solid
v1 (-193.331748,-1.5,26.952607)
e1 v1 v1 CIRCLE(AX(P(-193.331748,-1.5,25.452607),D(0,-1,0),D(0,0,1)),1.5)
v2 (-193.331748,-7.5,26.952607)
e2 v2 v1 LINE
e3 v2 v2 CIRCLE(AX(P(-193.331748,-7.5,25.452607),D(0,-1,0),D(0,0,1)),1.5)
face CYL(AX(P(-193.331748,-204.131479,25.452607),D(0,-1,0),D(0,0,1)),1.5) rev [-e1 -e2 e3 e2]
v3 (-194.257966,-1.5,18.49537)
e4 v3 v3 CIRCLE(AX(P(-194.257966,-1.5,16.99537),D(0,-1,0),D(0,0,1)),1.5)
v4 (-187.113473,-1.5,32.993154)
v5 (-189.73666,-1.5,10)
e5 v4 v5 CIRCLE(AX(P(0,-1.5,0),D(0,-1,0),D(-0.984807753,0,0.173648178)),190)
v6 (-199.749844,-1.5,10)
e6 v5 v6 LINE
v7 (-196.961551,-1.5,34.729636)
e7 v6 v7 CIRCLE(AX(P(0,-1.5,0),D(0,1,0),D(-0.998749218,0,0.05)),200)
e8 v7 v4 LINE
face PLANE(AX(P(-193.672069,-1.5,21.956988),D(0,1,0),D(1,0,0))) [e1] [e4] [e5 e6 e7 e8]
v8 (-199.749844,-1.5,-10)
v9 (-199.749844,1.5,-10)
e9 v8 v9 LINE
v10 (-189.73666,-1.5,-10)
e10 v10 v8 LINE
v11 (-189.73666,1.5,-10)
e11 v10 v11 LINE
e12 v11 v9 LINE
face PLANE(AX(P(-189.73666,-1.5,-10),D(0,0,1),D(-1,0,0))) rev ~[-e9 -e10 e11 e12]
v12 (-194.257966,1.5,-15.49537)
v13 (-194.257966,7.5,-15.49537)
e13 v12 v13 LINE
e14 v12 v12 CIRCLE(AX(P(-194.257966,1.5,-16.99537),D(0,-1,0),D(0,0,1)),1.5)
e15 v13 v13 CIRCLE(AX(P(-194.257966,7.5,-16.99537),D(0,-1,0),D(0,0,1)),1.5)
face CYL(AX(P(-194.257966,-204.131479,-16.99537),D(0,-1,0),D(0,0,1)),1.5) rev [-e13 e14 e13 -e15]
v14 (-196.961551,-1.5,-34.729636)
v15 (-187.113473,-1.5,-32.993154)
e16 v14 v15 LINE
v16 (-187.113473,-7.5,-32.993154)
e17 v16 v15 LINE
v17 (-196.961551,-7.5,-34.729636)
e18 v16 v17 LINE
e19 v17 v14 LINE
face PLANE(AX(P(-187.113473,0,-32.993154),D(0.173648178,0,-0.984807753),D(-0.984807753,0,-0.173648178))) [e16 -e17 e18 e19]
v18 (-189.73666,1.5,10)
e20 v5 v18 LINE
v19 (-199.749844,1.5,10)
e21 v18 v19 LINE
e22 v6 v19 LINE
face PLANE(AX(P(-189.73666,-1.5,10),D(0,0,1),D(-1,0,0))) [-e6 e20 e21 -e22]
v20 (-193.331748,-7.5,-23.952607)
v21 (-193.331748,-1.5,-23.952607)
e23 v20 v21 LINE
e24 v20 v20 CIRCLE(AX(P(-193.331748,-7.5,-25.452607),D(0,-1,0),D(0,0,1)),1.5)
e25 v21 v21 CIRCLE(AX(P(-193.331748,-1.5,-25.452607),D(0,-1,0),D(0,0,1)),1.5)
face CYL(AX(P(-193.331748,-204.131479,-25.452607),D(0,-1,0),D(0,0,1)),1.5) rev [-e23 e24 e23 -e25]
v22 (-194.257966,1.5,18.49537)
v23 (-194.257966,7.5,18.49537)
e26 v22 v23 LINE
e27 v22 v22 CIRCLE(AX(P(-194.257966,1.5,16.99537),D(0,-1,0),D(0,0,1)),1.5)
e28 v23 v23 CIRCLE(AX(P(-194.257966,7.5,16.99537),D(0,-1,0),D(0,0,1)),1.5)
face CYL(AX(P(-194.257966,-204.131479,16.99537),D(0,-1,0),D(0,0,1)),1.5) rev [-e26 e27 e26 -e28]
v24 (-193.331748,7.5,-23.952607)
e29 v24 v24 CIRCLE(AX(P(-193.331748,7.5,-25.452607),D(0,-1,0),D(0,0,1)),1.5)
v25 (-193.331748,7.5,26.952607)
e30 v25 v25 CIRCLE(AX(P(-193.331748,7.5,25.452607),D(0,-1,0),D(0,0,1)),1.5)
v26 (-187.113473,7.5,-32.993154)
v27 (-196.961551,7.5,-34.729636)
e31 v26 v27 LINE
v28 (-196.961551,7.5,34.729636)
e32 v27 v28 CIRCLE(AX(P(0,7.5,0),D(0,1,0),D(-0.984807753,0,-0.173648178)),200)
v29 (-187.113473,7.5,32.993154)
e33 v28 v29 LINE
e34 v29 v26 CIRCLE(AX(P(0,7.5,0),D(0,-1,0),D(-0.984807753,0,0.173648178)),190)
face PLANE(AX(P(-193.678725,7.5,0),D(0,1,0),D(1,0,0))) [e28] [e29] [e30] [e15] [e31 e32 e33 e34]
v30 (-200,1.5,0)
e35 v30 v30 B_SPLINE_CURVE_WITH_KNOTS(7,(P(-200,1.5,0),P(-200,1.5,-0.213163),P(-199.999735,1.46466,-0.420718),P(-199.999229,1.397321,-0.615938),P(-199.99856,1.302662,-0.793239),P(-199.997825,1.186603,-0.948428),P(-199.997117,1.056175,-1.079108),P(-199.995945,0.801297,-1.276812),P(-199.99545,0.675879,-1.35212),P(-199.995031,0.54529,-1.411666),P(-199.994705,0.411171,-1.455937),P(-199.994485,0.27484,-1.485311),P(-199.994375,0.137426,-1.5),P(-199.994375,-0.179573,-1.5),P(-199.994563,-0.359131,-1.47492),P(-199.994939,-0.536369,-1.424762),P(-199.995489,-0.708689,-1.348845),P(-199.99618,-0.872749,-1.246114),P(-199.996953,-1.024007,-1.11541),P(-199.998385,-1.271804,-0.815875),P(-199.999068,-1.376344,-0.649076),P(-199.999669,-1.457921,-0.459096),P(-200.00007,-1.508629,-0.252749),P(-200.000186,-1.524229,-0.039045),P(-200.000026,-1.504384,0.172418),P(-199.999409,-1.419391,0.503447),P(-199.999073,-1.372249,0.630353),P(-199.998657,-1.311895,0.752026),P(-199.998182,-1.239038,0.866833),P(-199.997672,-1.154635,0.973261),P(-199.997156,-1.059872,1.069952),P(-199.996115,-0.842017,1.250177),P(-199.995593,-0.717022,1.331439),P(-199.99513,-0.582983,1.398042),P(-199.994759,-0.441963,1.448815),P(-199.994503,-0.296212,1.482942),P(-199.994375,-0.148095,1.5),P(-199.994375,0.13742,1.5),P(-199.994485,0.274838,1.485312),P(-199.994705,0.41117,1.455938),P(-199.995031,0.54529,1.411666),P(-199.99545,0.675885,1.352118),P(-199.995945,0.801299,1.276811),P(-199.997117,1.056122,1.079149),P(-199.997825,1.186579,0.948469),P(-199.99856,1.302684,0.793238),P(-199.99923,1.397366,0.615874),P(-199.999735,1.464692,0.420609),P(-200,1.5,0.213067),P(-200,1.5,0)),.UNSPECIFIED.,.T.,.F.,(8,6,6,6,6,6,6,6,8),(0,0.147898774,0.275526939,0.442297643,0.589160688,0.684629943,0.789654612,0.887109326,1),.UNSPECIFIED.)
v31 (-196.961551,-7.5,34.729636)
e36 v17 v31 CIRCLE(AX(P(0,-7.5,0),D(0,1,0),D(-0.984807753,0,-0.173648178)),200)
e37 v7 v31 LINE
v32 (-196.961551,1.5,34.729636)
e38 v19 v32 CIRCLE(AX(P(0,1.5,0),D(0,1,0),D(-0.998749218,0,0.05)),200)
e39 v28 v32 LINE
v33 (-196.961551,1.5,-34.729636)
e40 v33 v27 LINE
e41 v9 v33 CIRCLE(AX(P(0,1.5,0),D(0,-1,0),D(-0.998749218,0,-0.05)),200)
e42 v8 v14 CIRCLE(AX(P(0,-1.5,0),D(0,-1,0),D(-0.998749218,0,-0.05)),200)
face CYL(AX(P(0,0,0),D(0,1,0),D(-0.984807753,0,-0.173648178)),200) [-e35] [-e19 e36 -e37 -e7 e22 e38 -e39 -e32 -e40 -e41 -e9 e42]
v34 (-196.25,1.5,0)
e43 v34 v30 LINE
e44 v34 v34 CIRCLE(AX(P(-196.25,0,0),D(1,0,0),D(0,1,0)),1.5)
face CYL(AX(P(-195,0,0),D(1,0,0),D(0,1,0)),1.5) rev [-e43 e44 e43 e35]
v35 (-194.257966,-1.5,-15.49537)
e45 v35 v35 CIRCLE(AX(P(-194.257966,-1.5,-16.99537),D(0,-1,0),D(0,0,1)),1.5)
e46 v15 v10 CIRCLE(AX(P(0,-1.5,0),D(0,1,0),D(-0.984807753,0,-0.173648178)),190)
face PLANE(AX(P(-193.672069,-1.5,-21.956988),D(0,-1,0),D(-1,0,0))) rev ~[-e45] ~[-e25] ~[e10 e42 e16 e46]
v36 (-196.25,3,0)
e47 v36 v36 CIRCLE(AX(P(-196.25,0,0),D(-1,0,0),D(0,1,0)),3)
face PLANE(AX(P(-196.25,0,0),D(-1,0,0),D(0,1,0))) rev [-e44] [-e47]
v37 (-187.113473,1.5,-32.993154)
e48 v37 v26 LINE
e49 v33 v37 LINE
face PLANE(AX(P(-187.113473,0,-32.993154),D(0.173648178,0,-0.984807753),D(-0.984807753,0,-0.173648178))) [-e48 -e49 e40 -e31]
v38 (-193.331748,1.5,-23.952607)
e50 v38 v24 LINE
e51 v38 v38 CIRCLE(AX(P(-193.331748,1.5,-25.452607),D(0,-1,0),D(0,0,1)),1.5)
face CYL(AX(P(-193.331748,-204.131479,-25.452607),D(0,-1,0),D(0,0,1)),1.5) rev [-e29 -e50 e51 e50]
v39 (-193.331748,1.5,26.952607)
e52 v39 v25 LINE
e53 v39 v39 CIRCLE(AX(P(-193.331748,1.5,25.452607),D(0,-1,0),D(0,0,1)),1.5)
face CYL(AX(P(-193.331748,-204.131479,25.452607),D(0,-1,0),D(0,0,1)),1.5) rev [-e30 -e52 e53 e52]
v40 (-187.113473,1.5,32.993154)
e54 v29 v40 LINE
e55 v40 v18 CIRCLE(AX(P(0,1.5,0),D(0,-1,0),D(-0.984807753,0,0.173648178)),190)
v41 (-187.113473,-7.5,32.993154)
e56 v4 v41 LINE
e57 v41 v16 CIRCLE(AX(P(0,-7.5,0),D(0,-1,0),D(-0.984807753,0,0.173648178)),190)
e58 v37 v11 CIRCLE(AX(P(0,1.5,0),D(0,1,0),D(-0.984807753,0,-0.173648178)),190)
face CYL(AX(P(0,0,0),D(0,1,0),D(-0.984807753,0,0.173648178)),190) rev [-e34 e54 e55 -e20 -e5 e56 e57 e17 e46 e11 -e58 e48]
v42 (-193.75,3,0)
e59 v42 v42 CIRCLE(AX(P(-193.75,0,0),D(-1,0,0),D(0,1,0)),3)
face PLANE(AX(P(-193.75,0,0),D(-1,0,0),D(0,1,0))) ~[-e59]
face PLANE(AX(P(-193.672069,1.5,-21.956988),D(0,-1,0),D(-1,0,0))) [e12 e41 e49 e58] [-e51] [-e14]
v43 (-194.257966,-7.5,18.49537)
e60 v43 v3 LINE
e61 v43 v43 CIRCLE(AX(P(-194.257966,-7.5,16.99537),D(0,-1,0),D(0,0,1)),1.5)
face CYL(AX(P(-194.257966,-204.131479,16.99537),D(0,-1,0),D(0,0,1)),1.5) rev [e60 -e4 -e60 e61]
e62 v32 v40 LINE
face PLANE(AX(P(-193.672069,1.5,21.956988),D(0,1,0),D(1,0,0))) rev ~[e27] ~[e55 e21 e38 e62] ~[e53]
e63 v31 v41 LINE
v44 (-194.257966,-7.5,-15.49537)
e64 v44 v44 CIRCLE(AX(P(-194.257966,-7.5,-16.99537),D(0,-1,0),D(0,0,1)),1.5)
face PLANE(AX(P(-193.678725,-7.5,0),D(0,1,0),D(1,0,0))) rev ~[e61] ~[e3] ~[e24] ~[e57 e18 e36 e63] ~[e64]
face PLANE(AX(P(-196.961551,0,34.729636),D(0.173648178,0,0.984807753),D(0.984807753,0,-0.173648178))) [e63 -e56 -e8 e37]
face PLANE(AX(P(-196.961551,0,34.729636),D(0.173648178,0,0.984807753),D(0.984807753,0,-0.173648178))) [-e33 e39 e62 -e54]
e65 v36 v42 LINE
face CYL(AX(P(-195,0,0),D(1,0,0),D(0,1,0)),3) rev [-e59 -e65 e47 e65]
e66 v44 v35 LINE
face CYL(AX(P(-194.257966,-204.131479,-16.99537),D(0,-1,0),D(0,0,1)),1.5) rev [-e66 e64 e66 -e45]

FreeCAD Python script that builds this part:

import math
import FreeCAD as App
import Part
import Sketcher
Q = App.Units.Quantity

doc = App.newDocument("Part")
params = doc.addObject("Spreadsheet::Sheet", "Params")
for row, (alias, value) in enumerate([
    ("sketch1_radius", "190 mm"),
    ("sketch1_radius2", "200 mm"),
    ("pad1_length", "15 mm"),
    ("sketch2_radius", "200 mm"),
    ("sketch2_radius2", "190 mm"),
    ("pocket1_length", "3 mm"),
    ("sketch3_diameter", "3 mm"),
    ("sketch4_diameter", "3 mm"),
    ("sketch5_height", "3 mm"),
    ("sketch5_width", "2.5 mm"),
    ("groove_angle", "360 deg"),
], start=1):
    params.set(f"A{row}", alias)
    params.set(f"B{row}", "=" + value)
    params.setAlias(f"B{row}", alias)

body = doc.addObject("PartDesign::Body", "Body")

# Sketch on XZ plane
sketch1 = body.newObject("Sketcher::SketchObject", "Sketch")
sketch1.AttachmentSupport = (doc.getObject("XZ_Plane"), [""])
sketch1.MapMode = "FlatFace"
sketch1.addGeometry([
    Part.ArcOfCircle(Part.Circle(App.Vector(0, 0, 0), App.Vector(0, 0, 1), 190), math.radians(170), math.radians(190)),
    Part.LineSegment(App.Vector(-187, -33, 0), App.Vector(-197, -35, 0)),
    Part.ArcOfCircle(Part.Circle(App.Vector(0, 0, 0), App.Vector(0, 0, 1), 200), math.radians(170), math.radians(190)),
    Part.LineSegment(App.Vector(-197, 35, 0), App.Vector(-187, 33, 0)),
], False)
sketch1.addConstraint([
    Sketcher.Constraint("Coincident", 0, 2, 1, 1),
    Sketcher.Constraint("Coincident", 1, 2, 2, 2),
    Sketcher.Constraint("Coincident", 2, 1, 3, 1),
    Sketcher.Constraint("Coincident", 3, 2, 0, 1),
    Sketcher.Constraint("Coincident", 0, 3, -1, 1),
    Sketcher.Constraint("Coincident", 2, 3, -1, 1),
    Sketcher.Constraint("Vertical", 1, 2, 2, 1),
    Sketcher.Constraint("Vertical", 0, 2, 3, 2),
    Sketcher.Constraint("Radius", 0, Q("190 mm")),
    Sketcher.Constraint("Radius", 2, Q("200 mm")),
    Sketcher.Constraint("Angle", 1, Q("-170 deg")),
    Sketcher.Constraint("DistanceX", 1, 2, -1, 1, Q("196.961551 mm")),
])
sketch1.setExpression("Constraints[8]", "Params.sketch1_radius")
sketch1.setExpression("Constraints[9]", "Params.sketch1_radius2")
pad1 = body.newObject("PartDesign::Pad", "Pad")
pad1.Profile = sketch1
pad1.setExpression("Length", "Params.pad1_length")
pad1.Midplane = True

# Sketch on XZ plane
sketch2 = body.newObject("Sketcher::SketchObject", "Sketch001")
sketch2.AttachmentSupport = (doc.getObject("XZ_Plane"), [""])
sketch2.MapMode = "FlatFace"
sketch2.AttachmentOffset = App.Placement(App.Vector(0, 0, 1.5), App.Rotation())
sketch2.addGeometry([
    Part.LineSegment(App.Vector(-190, 10, 0), App.Vector(-200, 10, 0)),  # 0
    Part.ArcOfCircle(Part.Circle(App.Vector(0, 0, 0), App.Vector(0, 0, 1), 200), math.radians(170), math.radians(177.13)),  # 1
    Part.LineSegment(App.Vector(-197, 35, 0), App.Vector(-187, 33, 0)),  # 2
    Part.ArcOfCircle(Part.Circle(App.Vector(0, 0, 0), App.Vector(0, 0, 1), 190), math.radians(170), math.radians(176.98)),  # 3
    Part.LineSegment(App.Vector(-200, -10, 0), App.Vector(-190, -10, 0)),  # 4
    Part.ArcOfCircle(Part.Circle(App.Vector(0, 0, 0), App.Vector(0, 0, 1), 190), math.radians(-176.98), math.radians(-170)),  # 5
    Part.LineSegment(App.Vector(-187, -33, 0), App.Vector(-197, -35, 0)),  # 6
    Part.ArcOfCircle(Part.Circle(App.Vector(0, 0, 0), App.Vector(0, 0, 1), 200), math.radians(-177.13), math.radians(-170)),  # 7
], False)
sketch2.addConstraint([
    Sketcher.Constraint("Coincident", 0, 2, 1, 2),
    Sketcher.Constraint("Coincident", 1, 1, 2, 1),
    Sketcher.Constraint("Coincident", 2, 2, 3, 1),
    Sketcher.Constraint("Coincident", 3, 2, 0, 1),
    Sketcher.Constraint("Coincident", 4, 2, 5, 1),
    Sketcher.Constraint("Coincident", 5, 2, 6, 1),
    Sketcher.Constraint("Coincident", 6, 2, 7, 2),
    Sketcher.Constraint("Coincident", 7, 1, 4, 1),
    Sketcher.Constraint("Horizontal", 0),
    Sketcher.Constraint("Horizontal", 4),
    Sketcher.Constraint("Coincident", 1, 3, -1, 1),
    Sketcher.Constraint("Coincident", 3, 3, -1, 1),
    Sketcher.Constraint("Coincident", 5, 3, -1, 1),
    Sketcher.Constraint("Coincident", 7, 3, -1, 1),
    Sketcher.Constraint("Equal", 3, 5),
    Sketcher.Constraint("Equal", 1, 7),
    Sketcher.Constraint("Vertical", 3, 2, 4, 2),
    Sketcher.Constraint("Vertical", 2, 2, 5, 2),
    Sketcher.Constraint("Vertical", 1, 1, 6, 2),
    Sketcher.Constraint("Radius", 1, Q("200 mm")),
    Sketcher.Constraint("Radius", 3, Q("190 mm")),
    Sketcher.Constraint("Angle", 2, Q("-10 deg")),
    Sketcher.Constraint("DistanceY", -1, 1, 0, 2, Q("10 mm")),
    Sketcher.Constraint("DistanceX", 1, 1, -1, 1, Q("196.961551 mm")),
])
sketch2.setExpression("Constraints[19]", "Params.sketch2_radius")
sketch2.setExpression("Constraints[20]", "Params.sketch2_radius2")
pocket1 = body.newObject("PartDesign::Pocket", "Pocket")
pocket1.Profile = sketch2
pocket1.setExpression("Length", "Params.pocket1_length")

# Sketch on XZ plane
sketch3 = body.newObject("Sketcher::SketchObject", "Sketch002")
sketch3.AttachmentSupport = (doc.getObject("XZ_Plane"), [""])
sketch3.MapMode = "FlatFace"
sketch3.addGeometry([
    Part.Circle(App.Vector(-193.3, -25.5, 0), App.Vector(0, 0, 1), 1.5),
    Part.Circle(App.Vector(-194.3, -17, 0), App.Vector(0, 0, 1), 1.5),
    Part.Circle(App.Vector(-194.3, 17, 0), App.Vector(0, 0, 1), 1.5),
    Part.Circle(App.Vector(-193.3, 25.5, 0), App.Vector(0, 0, 1), 1.5),
], False)
sketch3.addConstraint([
    Sketcher.Constraint("Equal", 0, 1),
    Sketcher.Constraint("Equal", 1, 2),
    Sketcher.Constraint("Equal", 2, 3),
    Sketcher.Constraint("Symmetric", 1, 3, 2, 3, -1),
    Sketcher.Constraint("Symmetric", 0, 3, 3, 3, -1),
    Sketcher.Constraint("Diameter", 0, Q("3 mm")),
    Sketcher.Constraint("DistanceY", 1, 3, -1, 1, Q("16.99537 mm")),
    Sketcher.Constraint("DistanceX", 1, 3, 0, 3, Q("0.926218 mm")),
    Sketcher.Constraint("DistanceX", 0, 3, -1, 1, Q("193.331748 mm")),
    Sketcher.Constraint("DistanceY", 0, 3, -1, 1, Q("25.452607 mm")),
])
sketch3.setExpression("Constraints[5]", "Params.sketch3_diameter")
pocket2 = body.newObject("PartDesign::Pocket", "Pocket001")
pocket2.Profile = sketch3
pocket2.Type = "ThroughAll"
pocket2.Midplane = True

# Sketch on YZ plane
sketch4 = body.newObject("Sketcher::SketchObject", "Sketch003")
sketch4.AttachmentSupport = (doc.getObject("YZ_Plane"), [""])
sketch4.MapMode = "FlatFace"
sketch4.AttachmentOffset = App.Placement(App.Vector(0, 0, -195), App.Rotation())
sketch4.addGeometry(Part.Circle(App.Vector(0, 0, 0), App.Vector(0, 0, 1), 1.5), False)
sketch4.addConstraint([
    Sketcher.Constraint("Coincident", 0, 3, -1, 1),
    Sketcher.Constraint("Diameter", 0, Q("3 mm")),
])
sketch4.setExpression("Constraints[1]", "Params.sketch4_diameter")
pocket3 = body.newObject("PartDesign::Pocket", "Pocket002")
pocket3.Profile = sketch4
pocket3.Type = "ThroughAll"

# Sketch on XZ plane
sketch5 = body.newObject("Sketcher::SketchObject", "Sketch004")
sketch5.AttachmentSupport = (doc.getObject("XZ_Plane"), [""])
sketch5.MapMode = "FlatFace"
sketch5.addGeometry([
    Part.LineSegment(App.Vector(-196.2, -3, 0), App.Vector(-196.2, 0, 0)),
    Part.LineSegment(App.Vector(-196.2, 0, 0), App.Vector(-193.8, 0, 0)),
    Part.LineSegment(App.Vector(-193.8, 0, 0), App.Vector(-193.8, -3, 0)),
    Part.LineSegment(App.Vector(-193.8, -3, 0), App.Vector(-196.2, -3, 0)),
], False)
sketch5.addConstraint([
    Sketcher.Constraint("Coincident", 0, 2, 1, 1),
    Sketcher.Constraint("Coincident", 1, 2, 2, 1),
    Sketcher.Constraint("Coincident", 2, 2, 3, 1),
    Sketcher.Constraint("Coincident", 3, 2, 0, 1),
    Sketcher.Constraint("Vertical", 0),
    Sketcher.Constraint("Horizontal", 1),
    Sketcher.Constraint("Vertical", 2),
    Sketcher.Constraint("Horizontal", 3),
    Sketcher.Constraint("PointOnObject", 0, 2, -1),
    Sketcher.Constraint("DistanceY", 0, 1, 0, 2, Q("3 mm")),
    Sketcher.Constraint("DistanceX", 1, 1, 1, 2, Q("2.5 mm")),
    Sketcher.Constraint("DistanceX", 0, 2, -1, 1, Q("196.25 mm")),
])
sketch5.setExpression("Constraints[9]", "Params.sketch5_height")
sketch5.setExpression("Constraints[10]", "Params.sketch5_width")
groove = body.newObject("PartDesign::Groove", "Groove")
groove.Profile = sketch5
groove.ReferenceAxis = (sketch5, ["H_Axis"])
groove.setExpression("Angle", "Params.groove_angle")

doc.recompute()
